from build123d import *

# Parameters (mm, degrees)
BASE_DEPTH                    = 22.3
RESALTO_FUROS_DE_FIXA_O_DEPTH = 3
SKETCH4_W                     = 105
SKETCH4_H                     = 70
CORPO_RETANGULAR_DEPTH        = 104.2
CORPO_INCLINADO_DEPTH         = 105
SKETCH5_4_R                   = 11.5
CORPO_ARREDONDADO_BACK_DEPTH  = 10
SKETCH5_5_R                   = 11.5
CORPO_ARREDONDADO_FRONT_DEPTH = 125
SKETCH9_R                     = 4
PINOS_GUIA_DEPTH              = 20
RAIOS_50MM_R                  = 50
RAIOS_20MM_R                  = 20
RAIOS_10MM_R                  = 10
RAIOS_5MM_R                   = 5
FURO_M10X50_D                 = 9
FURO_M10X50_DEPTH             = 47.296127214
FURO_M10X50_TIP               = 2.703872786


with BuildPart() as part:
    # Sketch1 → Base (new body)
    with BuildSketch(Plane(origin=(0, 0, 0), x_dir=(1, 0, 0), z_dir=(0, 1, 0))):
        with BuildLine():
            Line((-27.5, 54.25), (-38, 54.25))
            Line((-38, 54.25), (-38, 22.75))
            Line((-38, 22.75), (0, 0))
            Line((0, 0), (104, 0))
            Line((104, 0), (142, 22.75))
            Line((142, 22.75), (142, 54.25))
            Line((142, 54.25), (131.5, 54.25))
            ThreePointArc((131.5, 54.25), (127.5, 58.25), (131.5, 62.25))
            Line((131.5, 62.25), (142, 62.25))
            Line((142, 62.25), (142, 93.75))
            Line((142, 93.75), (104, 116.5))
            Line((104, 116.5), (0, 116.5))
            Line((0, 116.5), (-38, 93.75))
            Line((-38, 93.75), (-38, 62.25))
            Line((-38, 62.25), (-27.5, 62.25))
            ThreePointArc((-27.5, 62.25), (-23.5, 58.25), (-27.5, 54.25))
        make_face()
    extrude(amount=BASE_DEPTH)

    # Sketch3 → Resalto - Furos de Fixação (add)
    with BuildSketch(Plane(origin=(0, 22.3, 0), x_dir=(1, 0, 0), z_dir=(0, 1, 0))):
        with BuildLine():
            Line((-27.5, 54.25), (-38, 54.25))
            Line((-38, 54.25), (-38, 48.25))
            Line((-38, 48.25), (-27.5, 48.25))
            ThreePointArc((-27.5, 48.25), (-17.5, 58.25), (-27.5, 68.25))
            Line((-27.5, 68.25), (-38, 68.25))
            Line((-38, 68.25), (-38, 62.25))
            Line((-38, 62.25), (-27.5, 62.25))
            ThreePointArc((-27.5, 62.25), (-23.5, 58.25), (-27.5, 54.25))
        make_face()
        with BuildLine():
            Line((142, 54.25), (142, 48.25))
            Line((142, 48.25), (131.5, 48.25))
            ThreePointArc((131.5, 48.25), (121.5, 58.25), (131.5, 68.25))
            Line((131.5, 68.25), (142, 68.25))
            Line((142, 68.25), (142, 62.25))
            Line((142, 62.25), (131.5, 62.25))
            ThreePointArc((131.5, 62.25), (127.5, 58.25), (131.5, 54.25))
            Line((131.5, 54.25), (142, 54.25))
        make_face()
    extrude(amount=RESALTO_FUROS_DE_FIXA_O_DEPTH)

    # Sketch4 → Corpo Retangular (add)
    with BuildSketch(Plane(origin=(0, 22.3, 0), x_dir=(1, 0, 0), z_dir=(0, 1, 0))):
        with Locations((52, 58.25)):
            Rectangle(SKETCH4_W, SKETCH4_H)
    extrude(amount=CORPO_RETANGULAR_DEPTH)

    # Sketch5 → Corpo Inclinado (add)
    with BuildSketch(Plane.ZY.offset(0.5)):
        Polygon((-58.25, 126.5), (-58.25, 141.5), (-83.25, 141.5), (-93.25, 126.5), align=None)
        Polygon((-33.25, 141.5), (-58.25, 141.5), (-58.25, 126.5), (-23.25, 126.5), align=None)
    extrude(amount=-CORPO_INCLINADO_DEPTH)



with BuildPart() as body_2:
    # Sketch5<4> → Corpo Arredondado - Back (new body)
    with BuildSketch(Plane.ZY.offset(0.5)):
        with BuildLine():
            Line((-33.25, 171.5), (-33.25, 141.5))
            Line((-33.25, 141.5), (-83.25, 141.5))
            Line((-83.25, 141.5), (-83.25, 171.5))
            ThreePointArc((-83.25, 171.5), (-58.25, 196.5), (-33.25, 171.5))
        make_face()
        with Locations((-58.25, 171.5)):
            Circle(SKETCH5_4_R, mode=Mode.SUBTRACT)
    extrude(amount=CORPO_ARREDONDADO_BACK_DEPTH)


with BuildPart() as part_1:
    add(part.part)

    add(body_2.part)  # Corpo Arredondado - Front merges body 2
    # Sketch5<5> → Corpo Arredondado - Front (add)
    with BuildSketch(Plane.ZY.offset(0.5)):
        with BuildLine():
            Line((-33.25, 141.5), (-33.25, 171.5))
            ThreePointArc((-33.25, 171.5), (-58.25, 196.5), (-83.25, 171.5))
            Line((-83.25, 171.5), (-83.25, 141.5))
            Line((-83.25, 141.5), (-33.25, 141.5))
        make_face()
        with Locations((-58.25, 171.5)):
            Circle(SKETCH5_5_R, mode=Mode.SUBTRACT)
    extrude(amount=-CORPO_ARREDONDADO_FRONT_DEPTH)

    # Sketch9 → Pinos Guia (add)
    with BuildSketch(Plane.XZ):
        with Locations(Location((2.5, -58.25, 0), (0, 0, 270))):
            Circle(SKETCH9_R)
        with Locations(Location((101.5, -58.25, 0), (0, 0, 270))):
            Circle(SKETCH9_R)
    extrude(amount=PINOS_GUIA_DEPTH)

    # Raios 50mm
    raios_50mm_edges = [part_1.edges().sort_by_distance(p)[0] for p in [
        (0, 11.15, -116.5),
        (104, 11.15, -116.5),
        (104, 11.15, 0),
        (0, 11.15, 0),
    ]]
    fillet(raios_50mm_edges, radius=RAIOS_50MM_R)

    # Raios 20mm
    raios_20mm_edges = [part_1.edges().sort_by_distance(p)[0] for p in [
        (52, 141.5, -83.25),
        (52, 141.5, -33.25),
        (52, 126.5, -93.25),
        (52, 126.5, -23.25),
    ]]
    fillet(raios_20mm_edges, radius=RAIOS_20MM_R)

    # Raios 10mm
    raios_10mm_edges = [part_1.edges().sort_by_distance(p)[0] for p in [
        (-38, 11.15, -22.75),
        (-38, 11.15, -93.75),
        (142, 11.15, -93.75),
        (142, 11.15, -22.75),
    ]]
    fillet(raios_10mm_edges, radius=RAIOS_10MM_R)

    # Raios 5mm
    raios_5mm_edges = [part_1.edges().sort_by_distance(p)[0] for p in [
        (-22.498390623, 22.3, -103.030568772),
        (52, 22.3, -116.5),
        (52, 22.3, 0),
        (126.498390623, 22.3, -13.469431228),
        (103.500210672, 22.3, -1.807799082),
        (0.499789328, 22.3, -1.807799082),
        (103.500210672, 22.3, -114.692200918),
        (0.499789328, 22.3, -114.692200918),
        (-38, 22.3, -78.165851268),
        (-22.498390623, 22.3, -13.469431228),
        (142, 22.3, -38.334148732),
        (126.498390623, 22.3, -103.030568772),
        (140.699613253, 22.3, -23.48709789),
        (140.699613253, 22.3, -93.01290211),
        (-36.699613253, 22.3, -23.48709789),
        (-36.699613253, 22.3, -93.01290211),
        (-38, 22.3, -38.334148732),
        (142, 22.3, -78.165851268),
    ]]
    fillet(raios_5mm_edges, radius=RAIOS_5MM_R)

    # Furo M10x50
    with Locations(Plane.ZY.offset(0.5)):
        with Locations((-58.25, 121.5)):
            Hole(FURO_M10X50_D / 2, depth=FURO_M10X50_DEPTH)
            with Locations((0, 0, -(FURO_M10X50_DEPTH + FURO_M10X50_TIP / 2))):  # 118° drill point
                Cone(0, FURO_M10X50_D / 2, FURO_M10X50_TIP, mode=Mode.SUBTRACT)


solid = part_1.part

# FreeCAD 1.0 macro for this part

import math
import FreeCAD as App
import Part
import Sketcher
Q = App.Units.Quantity


def edges_at(feature, points):
    """Names of the edges that pass closest to the given points."""
    edges = feature.Shape.Edges
    near = lambda p: min(range(len(edges)), key=lambda i: edges[i].distToShape(Part.Vertex(*p))[0])
    return sorted({f"Edge{near(p) + 1}" for p in points})


def add_polygon(sketch, points):
    """Adds a closed chain of lines whose ends are joined by coincident constraints."""
    first, n = sketch.GeometryCount, len(points)
    for a, b in zip(points, points[1:] + points[:1]):
        sketch.addGeometry(Part.LineSegment(App.Vector(*a, 0), App.Vector(*b, 0)), False)
    for i in range(n):
        sketch.addConstraint(Sketcher.Constraint("Coincident", first + i, 2, first + (i + 1) % n, 1))

doc = App.newDocument("Part")
body = doc.addObject("PartDesign::Body", "Body")

sketch1 = body.newObject("Sketcher::SketchObject", "Sketch")
sketch1.AttachmentSupport = (doc.getObject("XZ_Plane"), [""])
sketch1.MapMode = "FlatFace"
sketch1.addGeometry(Part.LineSegment(App.Vector(-27.5, -54.2, 0), App.Vector(-38, -54.2, 0)), False)
sketch1.addGeometry(Part.LineSegment(App.Vector(-38, -54.2, 0), App.Vector(-38, -22.8, 0)), False)
sketch1.addGeometry(Part.LineSegment(App.Vector(-38, -22.8, 0), App.Vector(0, 0, 0)), False)
sketch1.addGeometry(Part.LineSegment(App.Vector(0, 0, 0), App.Vector(104, 0, 0)), False)
sketch1.addGeometry(Part.LineSegment(App.Vector(104, 0, 0), App.Vector(142, -22.8, 0)), False)
sketch1.addGeometry(Part.LineSegment(App.Vector(142, -22.8, 0), App.Vector(142, -54.2, 0)), False)
sketch1.addGeometry(Part.LineSegment(App.Vector(142, -54.2, 0), App.Vector(131.5, -54.2, 0)), False)
sketch1.addGeometry(Part.ArcOfCircle(Part.Circle(App.Vector(131.5, -58.2, 0), App.Vector(0, 0, 1), 4), math.radians(90), math.radians(270)), False)
sketch1.addGeometry(Part.LineSegment(App.Vector(131.5, -62.2, 0), App.Vector(142, -62.2, 0)), False)
sketch1.addGeometry(Part.LineSegment(App.Vector(142, -62.2, 0), App.Vector(142, -93.8, 0)), False)
sketch1.addGeometry(Part.LineSegment(App.Vector(142, -93.8, 0), App.Vector(104, -116.5, 0)), False)
sketch1.addGeometry(Part.LineSegment(App.Vector(104, -116.5, 0), App.Vector(0, -116.5, 0)), False)
sketch1.addGeometry(Part.LineSegment(App.Vector(0, -116.5, 0), App.Vector(-38, -93.8, 0)), False)
sketch1.addGeometry(Part.LineSegment(App.Vector(-38, -93.8, 0), App.Vector(-38, -62.2, 0)), False)
sketch1.addGeometry(Part.LineSegment(App.Vector(-38, -62.2, 0), App.Vector(-27.5, -62.2, 0)), False)
sketch1.addGeometry(Part.ArcOfCircle(Part.Circle(App.Vector(-27.5, -58.2, 0), App.Vector(0, 0, 1), 4), math.radians(-90), math.radians(90)), False)
sketch1.addConstraint(Sketcher.Constraint("Coincident", 0, 2, 1, 1))
sketch1.addConstraint(Sketcher.Constraint("Coincident", 1, 2, 2, 1))
sketch1.addConstraint(Sketcher.Constraint("Coincident", 2, 2, 3, 1))
sketch1.addConstraint(Sketcher.Constraint("Coincident", 3, 2, 4, 1))
sketch1.addConstraint(Sketcher.Constraint("Coincident", 4, 2, 5, 1))
sketch1.addConstraint(Sketcher.Constraint("Coincident", 5, 2, 6, 1))
sketch1.addConstraint(Sketcher.Constraint("Tangent", 6, 2, 7, 1))
sketch1.addConstraint(Sketcher.Constraint("Tangent", 7, 2, 8, 1))
sketch1.addConstraint(Sketcher.Constraint("Coincident", 8, 2, 9, 1))
sketch1.addConstraint(Sketcher.Constraint("Coincident", 9, 2, 10, 1))
sketch1.addConstraint(Sketcher.Constraint("Coincident", 10, 2, 11, 1))
sketch1.addConstraint(Sketcher.Constraint("Coincident", 11, 2, 12, 1))
sketch1.addConstraint(Sketcher.Constraint("Coincident", 12, 2, 13, 1))
sketch1.addConstraint(Sketcher.Constraint("Coincident", 13, 2, 14, 1))
sketch1.addConstraint(Sketcher.Constraint("Tangent", 14, 2, 15, 1))
sketch1.addConstraint(Sketcher.Constraint("Tangent", 15, 2, 0, 1))
sketch1.addConstraint(Sketcher.Constraint("Horizontal", 0))
sketch1.addConstraint(Sketcher.Constraint("Vertical", 1))
sketch1.addConstraint(Sketcher.Constraint("Horizontal", 3))
sketch1.addConstraint(Sketcher.Constraint("Vertical", 5))
sketch1.addConstraint(Sketcher.Constraint("Horizontal", 6))
sketch1.addConstraint(Sketcher.Constraint("Horizontal", 8))
sketch1.addConstraint(Sketcher.Constraint("Vertical", 9))
sketch1.addConstraint(Sketcher.Constraint("Horizontal", 11))
sketch1.addConstraint(Sketcher.Constraint("Vertical", 13))
sketch1.addConstraint(Sketcher.Constraint("Horizontal", 14))
sketch1.addConstraint(Sketcher.Constraint("Coincident", 2, 2, -1, 1))
sketch1.addConstraint(Sketcher.Constraint("Equal", 7, 15))
sketch1.addConstraint(Sketcher.Constraint("PointOnObject", 11, 2, -2))
sketch1.addConstraint(Sketcher.Constraint("Parallel", 2, 10))
sketch1.addConstraint(Sketcher.Constraint("Parallel", 4, 12))
sketch1.addConstraint(Sketcher.Constraint("Horizontal", 7, 3, 15, 3))
sketch1.addConstraint(Sketcher.Constraint("Horizontal", 1, 2, 4, 2))
sketch1.addConstraint(Sketcher.Constraint("Horizontal", 9, 2, 12, 2))
sketch1.addConstraint(Sketcher.Constraint("Vertical", 5, 2, 8, 2))
sketch1.addConstraint(Sketcher.Constraint("Vertical", 3, 2, 10, 2))
sketch1.addConstraint(Sketcher.Constraint("Vertical", 1, 2, 12, 2))
sketch1.addConstraint(Sketcher.Constraint("Equal", 0, 6))
sketch1.addConstraint(Sketcher.Constraint("Equal", 5, 9))
sketch1.addConstraint(Sketcher.Constraint("Radius", 7, Q("4 mm")))
sketch1.addConstraint(Sketcher.Constraint("DistanceX", 3, 1, 3, 2, Q("104 mm")))
sketch1.addConstraint(Sketcher.Constraint("DistanceX", 0, 2, 0, 1, Q("10.5 mm")))
sketch1.addConstraint(Sketcher.Constraint("DistanceY", 1, 1, 1, 2, Q("31.5 mm")))
sketch1.addConstraint(Sketcher.Constraint("DistanceX", 0, 2, -1, 1, Q("38 mm")))
sketch1.addConstraint(Sketcher.Constraint("DistanceY", 10, 2, -1, 1, Q("116.5 mm")))
pad1 = body.newObject("PartDesign::Pad", "Pad")
pad1.Profile = sketch1
pad1.Length = 22.3
pad1.Reversed = True

sketch2 = body.newObject("Sketcher::SketchObject", "Sketch001")
sketch2.AttachmentSupport = (doc.getObject("XZ_Plane"), [""])
sketch2.MapMode = "FlatFace"
sketch2.AttachmentOffset = App.Placement(App.Vector(0, 0, -22.3), App.Rotation())
sketch2.addGeometry(Part.LineSegment(App.Vector(-27.5, -54.2, 0), App.Vector(-38, -54.2, 0)), False)
sketch2.addGeometry(Part.LineSegment(App.Vector(-38, -54.2, 0), App.Vector(-38, -48.2, 0)), False)
sketch2.addGeometry(Part.LineSegment(App.Vector(-38, -48.2, 0), App.Vector(-27.5, -48.2, 0)), False)
sketch2.addGeometry(Part.ArcOfCircle(Part.Circle(App.Vector(-27.5, -58.2, 0), App.Vector(0, 0, 1), 10), math.radians(-90), math.radians(90)), False)
sketch2.addGeometry(Part.LineSegment(App.Vector(-27.5, -68.2, 0), App.Vector(-38, -68.2, 0)), False)
sketch2.addGeometry(Part.LineSegment(App.Vector(-38, -68.2, 0), App.Vector(-38, -62.2, 0)), False)
sketch2.addGeometry(Part.LineSegment(App.Vector(-38, -62.2, 0), App.Vector(-27.5, -62.2, 0)), False)
sketch2.addGeometry(Part.ArcOfCircle(Part.Circle(App.Vector(-27.5, -58.2, 0), App.Vector(0, 0, 1), 4), math.radians(-90), math.radians(90)), False)
sketch2.addGeometry(Part.LineSegment(App.Vector(142, -48.2, 0), App.Vector(142, -54.2, 0)), False)
sketch2.addGeometry(Part.LineSegment(App.Vector(142, -54.2, 0), App.Vector(131.5, -54.2, 0)), False)
sketch2.addGeometry(Part.ArcOfCircle(Part.Circle(App.Vector(131.5, -58.2, 0), App.Vector(0, 0, 1), 4), math.radians(90), math.radians(270)), False)
sketch2.addGeometry(Part.LineSegment(App.Vector(131.5, -62.2, 0), App.Vector(142, -62.2, 0)), False)
sketch2.addGeometry(Part.LineSegment(App.Vector(142, -62.2, 0), App.Vector(142, -68.2, 0)), False)
sketch2.addGeometry(Part.LineSegment(App.Vector(142, -68.2, 0), App.Vector(131.5, -68.2, 0)), False)
sketch2.addGeometry(Part.ArcOfCircle(Part.Circle(App.Vector(131.5, -58.2, 0), App.Vector(0, 0, 1), 10), math.radians(90), math.radians(270)), False)
sketch2.addGeometry(Part.LineSegment(App.Vector(131.5, -48.2, 0), App.Vector(142, -48.2, 0)), False)
sketch2.addConstraint(Sketcher.Constraint("Coincident", 0, 2, 1, 1))
sketch2.addConstraint(Sketcher.Constraint("Coincident", 1, 2, 2, 1))
sketch2.addConstraint(Sketcher.Constraint("Tangent", 2, 2, 3, 2))
sketch2.addConstraint(Sketcher.Constraint("Tangent", 3, 1, 4, 1))
sketch2.addConstraint(Sketcher.Constraint("Coincident", 4, 2, 5, 1))
sketch2.addConstraint(Sketcher.Constraint("Coincident", 5, 2, 6, 1))
sketch2.addConstraint(Sketcher.Constraint("Tangent", 6, 2, 7, 1))
sketch2.addConstraint(Sketcher.Constraint("Tangent", 7, 2, 0, 1))
sketch2.addConstraint(Sketcher.Constraint("Coincident", 8, 2, 9, 1))
sketch2.addConstraint(Sketcher.Constraint("Tangent", 9, 2, 10, 1))
sketch2.addConstraint(Sketcher.Constraint("Tangent", 10, 2, 11, 1))
sketch2.addConstraint(Sketcher.Constraint("Coincident", 11, 2, 12, 1))
sketch2.addConstraint(Sketcher.Constraint("Coincident", 12, 2, 13, 1))
sketch2.addConstraint(Sketcher.Constraint("Tangent", 13, 2, 14, 2))
sketch2.addConstraint(Sketcher.Constraint("Tangent", 14, 1, 15, 1))
sketch2.addConstraint(Sketcher.Constraint("Coincident", 15, 2, 8, 1))
sketch2.addConstraint(Sketcher.Constraint("Horizontal", 0))
sketch2.addConstraint(Sketcher.Constraint("Vertical", 1))
sketch2.addConstraint(Sketcher.Constraint("Horizontal", 2))
sketch2.addConstraint(Sketcher.Constraint("Horizontal", 4))
sketch2.addConstraint(Sketcher.Constraint("Vertical", 5))
sketch2.addConstraint(Sketcher.Constraint("Horizontal", 6))
sketch2.addConstraint(Sketcher.Constraint("Vertical", 8))
sketch2.addConstraint(Sketcher.Constraint("Horizontal", 9))
sketch2.addConstraint(Sketcher.Constraint("Horizontal", 11))
sketch2.addConstraint(Sketcher.Constraint("Vertical", 12))
sketch2.addConstraint(Sketcher.Constraint("Horizontal", 13))
sketch2.addConstraint(Sketcher.Constraint("Horizontal", 15))
sketch2.addConstraint(Sketcher.Constraint("Coincident", 7, 3, 3, 3))
sketch2.addConstraint(Sketcher.Constraint("Coincident", 14, 3, 10, 3))
sketch2.addConstraint(Sketcher.Constraint("Equal", 7, 10))
sketch2.addConstraint(Sketcher.Constraint("Equal", 3, 14))
sketch2.addConstraint(Sketcher.Constraint("Horizontal", 7, 3, 10, 3))
sketch2.addConstraint(Sketcher.Constraint("Vertical", 1, 2, 4, 2))
sketch2.addConstraint(Sketcher.Constraint("Vertical", 8, 2, 11, 2))
sketch2.addConstraint(Sketcher.Constraint("Equal", 6, 9))
sketch2.addConstraint(Sketcher.Constraint("Radius", 3, Q("10 mm")))
sketch2.addConstraint(Sketcher.Constraint("Radius", 7, Q("4 mm")))
sketch2.addConstraint(Sketcher.Constraint("DistanceX", 0, 2, 0, 1, Q("10.5 mm")))
sketch2.addConstraint(Sketcher.Constraint("DistanceX", 0, 2, -1, 1, Q("38 mm")))
sketch2.addConstraint(Sketcher.Constraint("DistanceX", -1, 1, 8, 2, Q("142 mm")))
sketch2.addConstraint(Sketcher.Constraint("DistanceY", 3, 3, -1, 1, Q("58.25 mm")))
pad2 = body.newObject("PartDesign::Pad", "Pad001")
pad2.Profile = sketch2
pad2.Length = 3
pad2.Reversed = True

sketch3 = body.newObject("Sketcher::SketchObject", "Sketch002")
sketch3.AttachmentSupport = (doc.getObject("XZ_Plane"), [""])
sketch3.MapMode = "FlatFace"
sketch3.AttachmentOffset = App.Placement(App.Vector(0, 0, -22.3), App.Rotation())
add_polygon(sketch3, [(0, -93), (0, -23), (104, -23), (104, -93)])
sketch3.addConstraint(Sketcher.Constraint("Vertical", 0))
sketch3.addConstraint(Sketcher.Constraint("Horizontal", 1))
sketch3.addConstraint(Sketcher.Constraint("Vertical", 2))
sketch3.addConstraint(Sketcher.Constraint("Horizontal", 3))
sketch3.addConstraint(Sketcher.Constraint("DistanceX", 1, 1, 1, 2, Q("105 mm")))
sketch3.addConstraint(Sketcher.Constraint("DistanceY", 0, 1, 0, 2, Q("70 mm")))
sketch3.addConstraint(Sketcher.Constraint("DistanceX", 0, 2, -1, 1, Q("0.5 mm")))
sketch3.addConstraint(Sketcher.Constraint("DistanceY", 0, 2, -1, 1, Q("23.25 mm")))
pad3 = body.newObject("PartDesign::Pad", "Pad002")
pad3.Profile = sketch3
pad3.Length = 104.2
pad3.Reversed = True

sketch4 = body.newObject("Sketcher::SketchObject", "Sketch003")
sketch4.AttachmentSupport = (doc.getObject("YZ_Plane"), [""])
sketch4.MapMode = "FlatFace"
sketch4.AttachmentOffset = App.Placement(App.Vector(0, 0, -0.5), App.Rotation())
add_polygon(sketch4, [(142, -83), (126, -93), (126, -23), (142, -33)])
sketch4.addConstraint(Sketcher.Constraint("Vertical", 1))
sketch4.addConstraint(Sketcher.Constraint("Vertical", 3))
sketch4.addConstraint(Sketcher.Constraint("Equal", 0, 2))
sketch4.addConstraint(Sketcher.Constraint("DistanceY", 1, 1, 1, 2, Q("70 mm")))
sketch4.addConstraint(Sketcher.Constraint("DistanceY", 3, 2, 3, 1, Q("50 mm")))
sketch4.addConstraint(Sketcher.Constraint("DistanceX", 1, 2, 2, 2, Q("15 mm")))
sketch4.addConstraint(Sketcher.Constraint("DistanceX", -1, 1, 0, 2, Q("126.5 mm")))
sketch4.addConstraint(Sketcher.Constraint("DistanceY", 0, 2, -1, 1, Q("93.25 mm")))
pad4 = body.newObject("PartDesign::Pad", "Pad003")
pad4.Profile = sketch4
pad4.Length = 105
body2 = doc.addObject("PartDesign::Body", "Body001")

sketch5 = body2.newObject("Sketcher::SketchObject", "Sketch004")
sketch5.AttachmentSupport = (doc.getObject("YZ_Plane001"), [""])
sketch5.MapMode = "FlatFace"
sketch5.AttachmentOffset = App.Placement(App.Vector(0, 0, -0.5), App.Rotation())
sketch5.addGeometry(Part.LineSegment(App.Vector(142, -33, 0), App.Vector(172, -33, 0)), False)
sketch5.addGeometry(Part.ArcOfCircle(Part.Circle(App.Vector(172, -58, 0), App.Vector(0, 0, 1), 25), math.radians(-90), math.radians(90)), False)
sketch5.addGeometry(Part.LineSegment(App.Vector(172, -83, 0), App.Vector(142, -83, 0)), False)
sketch5.addGeometry(Part.LineSegment(App.Vector(142, -83, 0), App.Vector(142, -33, 0)), False)
sketch5.addGeometry(Part.Circle(App.Vector(172, -58, 0), App.Vector(0, 0, 1), 12), False)
sketch5.addConstraint(Sketcher.Constraint("Tangent", 0, 2, 1, 2))
sketch5.addConstraint(Sketcher.Constraint("Tangent", 1, 1, 2, 1))
sketch5.addConstraint(Sketcher.Constraint("Coincident", 2, 2, 3, 1))
sketch5.addConstraint(Sketcher.Constraint("Coincident", 3, 2, 0, 1))
sketch5.addConstraint(Sketcher.Constraint("Horizontal", 0))
sketch5.addConstraint(Sketcher.Constraint("Horizontal", 2))
sketch5.addConstraint(Sketcher.Constraint("Vertical", 3))
sketch5.addConstraint(Sketcher.Constraint("Coincident", 4, 3, 1, 3))
sketch5.addConstraint(Sketcher.Constraint("Diameter", 4, Q("23 mm")))
sketch5.addConstraint(Sketcher.Constraint("Radius", 1, Q("25 mm")))
sketch5.addConstraint(Sketcher.Constraint("DistanceX", 0, 1, 0, 2, Q("30 mm")))
sketch5.addConstraint(Sketcher.Constraint("DistanceX", -1, 1, 1, 3, Q("171.5 mm")))
sketch5.addConstraint(Sketcher.Constraint("DistanceY", 1, 3, -1, 1, Q("58.25 mm")))
pad5 = body2.newObject("PartDesign::Pad", "Pad004")
pad5.Profile = sketch5
pad5.Length = 10
pad5.Reversed = True
body.AllowCompound = True
doc.recompute()

boolean = body.newObject("PartDesign::Boolean", "Boolean")
boolean.Type = "Fuse"
boolean.addObjects([body2])

sketch6 = body.newObject("Sketcher::SketchObject", "Sketch005")
sketch6.AttachmentSupport = (doc.getObject("YZ_Plane"), [""])
sketch6.MapMode = "FlatFace"
sketch6.AttachmentOffset = App.Placement(App.Vector(0, 0, -0.5), App.Rotation())
sketch6.addGeometry(Part.LineSegment(App.Vector(142, -33, 0), App.Vector(172, -33, 0)), False)
sketch6.addGeometry(Part.ArcOfCircle(Part.Circle(App.Vector(172, -58, 0), App.Vector(0, 0, 1), 25), math.radians(-90), math.radians(90)), False)
sketch6.addGeometry(Part.LineSegment(App.Vector(172, -83, 0), App.Vector(142, -83, 0)), False)
sketch6.addGeometry(Part.LineSegment(App.Vector(142, -83, 0), App.Vector(142, -33, 0)), False)
sketch6.addGeometry(Part.Circle(App.Vector(172, -58, 0), App.Vector(0, 0, 1), 12), False)
sketch6.addConstraint(Sketcher.Constraint("Tangent", 0, 2, 1, 2))
sketch6.addConstraint(Sketcher.Constraint("Tangent", 1, 1, 2, 1))
sketch6.addConstraint(Sketcher.Constraint("Coincident", 2, 2, 3, 1))
sketch6.addConstraint(Sketcher.Constraint("Coincident", 3, 2, 0, 1))
sketch6.addConstraint(Sketcher.Constraint("Horizontal", 0))
sketch6.addConstraint(Sketcher.Constraint("Horizontal", 2))
sketch6.addConstraint(Sketcher.Constraint("Vertical", 3))
sketch6.addConstraint(Sketcher.Constraint("Coincident", 4, 3, 1, 3))
sketch6.addConstraint(Sketcher.Constraint("Diameter", 4, Q("23 mm")))
sketch6.addConstraint(Sketcher.Constraint("Radius", 1, Q("25 mm")))
sketch6.addConstraint(Sketcher.Constraint("DistanceX", 0, 1, 0, 2, Q("30 mm")))
sketch6.addConstraint(Sketcher.Constraint("DistanceX", -1, 1, 1, 3, Q("171.5 mm")))
sketch6.addConstraint(Sketcher.Constraint("DistanceY", 1, 3, -1, 1, Q("58.25 mm")))
pad6 = body.newObject("PartDesign::Pad", "Pad005")
pad6.Profile = sketch6
pad6.Length = 125

sketch7 = body.newObject("Sketcher::SketchObject", "Sketch006")
sketch7.AttachmentSupport = (doc.getObject("XZ_Plane"), [""])
sketch7.MapMode = "FlatFace"
sketch7.addGeometry(Part.Circle(App.Vector(2.5, -58.2, 0), App.Vector(0, 0, 1), 4), False)
sketch7.addGeometry(Part.Circle(App.Vector(101.5, -58.2, 0), App.Vector(0, 0, 1), 4), False)
sketch7.addConstraint(Sketcher.Constraint("Equal", 0, 1))
sketch7.addConstraint(Sketcher.Constraint("Horizontal", 0, 3, 1, 3))
sketch7.addConstraint(Sketcher.Constraint("Diameter", 0, Q("8 mm")))
sketch7.addConstraint(Sketcher.Constraint("DistanceX", 0, 3, 1, 3, Q("99 mm")))
sketch7.addConstraint(Sketcher.Constraint("DistanceX", -1, 1, 0, 3, Q("2.5 mm")))
sketch7.addConstraint(Sketcher.Constraint("DistanceY", 0, 3, -1, 1, Q("58.25 mm")))
pad7 = body.newObject("PartDesign::Pad", "Pad006")
pad7.Profile = sketch7
pad7.Length = 20
doc.recompute()

fillet = body.newObject("PartDesign::Fillet", "Fillet")
fillet.Base = (pad7, edges_at(pad7, [
    (0, 11.15, -116.5),
    (104, 11.15, -116.5),
    (104, 11.15, 0),
    (0, 11.15, 0),
]))
fillet.Radius = 50
doc.recompute()

fillet2 = body.newObject("PartDesign::Fillet", "Fillet001")
fillet2.Base = (fillet, edges_at(fillet, [
    (52, 141.5, -83.25),
    (52, 141.5, -33.25),
    (52, 126.5, -93.25),
    (52, 126.5, -23.25),
]))
fillet2.Radius = 20
doc.recompute()

fillet3 = body.newObject("PartDesign::Fillet", "Fillet002")
fillet3.Base = (fillet2, edges_at(fillet2, [
    (-38, 11.15, -22.75),
    (-38, 11.15, -93.75),
    (142, 11.15, -93.75),
    (142, 11.15, -22.75),
]))
fillet3.Radius = 10
doc.recompute()

fillet4 = body.newObject("PartDesign::Fillet", "Fillet003")
fillet4.Base = (fillet3, edges_at(fillet3, [
    (-22.498, 22.3, -103.031),
    (52, 22.3, -116.5),
    (52, 22.3, 0),
    (126.498, 22.3, -13.469),
    (103.5, 22.3, -1.808),
    (0.5, 22.3, -1.808),
    (103.5, 22.3, -114.692),
    (0.5, 22.3, -114.692),
    (-38, 22.3, -78.166),
    (-22.498, 22.3, -13.469),
    (142, 22.3, -38.334),
    (126.498, 22.3, -103.031),
    (140.7, 22.3, -23.487),
    (140.7, 22.3, -93.013),
    (-36.7, 22.3, -23.487),
    (-36.7, 22.3, -93.013),
    (-38, 22.3, -38.334),
    (142, 22.3, -78.166),
]))
fillet4.Radius = 5

sketch8 = body.newObject("Sketcher::SketchObject", "Sketch007")
sketch8.AttachmentSupport = (doc.getObject("YZ_Plane"), [""])
sketch8.MapMode = "FlatFace"
sketch8.AttachmentOffset = App.Placement(App.Vector(0, 0, -0.5), App.Rotation())
sketch8.addGeometry(Part.Circle(App.Vector(121.5, -58.2, 0), App.Vector(0, 0, 1), 4.5), False)
sketch8.addConstraint(Sketcher.Constraint("Diameter", 0, Q("9 mm")))
sketch8.addConstraint(Sketcher.Constraint("DistanceX", -1, 1, 0, 3, Q("121.5 mm")))
sketch8.addConstraint(Sketcher.Constraint("DistanceY", 0, 3, -1, 1, Q("58.25 mm")))
doc.recompute()
hole = body.newObject("PartDesign::Hole", "Hole")
hole.Profile = sketch8
hole.ThreadType = "None"
hole.Diameter = 9
hole.DepthType = "Dimension"
hole.Depth = 47.296127
hole.DrillPoint = "Angled"
hole.DrillPointAngle = 118
hole.Reversed = True

doc.recompute()
